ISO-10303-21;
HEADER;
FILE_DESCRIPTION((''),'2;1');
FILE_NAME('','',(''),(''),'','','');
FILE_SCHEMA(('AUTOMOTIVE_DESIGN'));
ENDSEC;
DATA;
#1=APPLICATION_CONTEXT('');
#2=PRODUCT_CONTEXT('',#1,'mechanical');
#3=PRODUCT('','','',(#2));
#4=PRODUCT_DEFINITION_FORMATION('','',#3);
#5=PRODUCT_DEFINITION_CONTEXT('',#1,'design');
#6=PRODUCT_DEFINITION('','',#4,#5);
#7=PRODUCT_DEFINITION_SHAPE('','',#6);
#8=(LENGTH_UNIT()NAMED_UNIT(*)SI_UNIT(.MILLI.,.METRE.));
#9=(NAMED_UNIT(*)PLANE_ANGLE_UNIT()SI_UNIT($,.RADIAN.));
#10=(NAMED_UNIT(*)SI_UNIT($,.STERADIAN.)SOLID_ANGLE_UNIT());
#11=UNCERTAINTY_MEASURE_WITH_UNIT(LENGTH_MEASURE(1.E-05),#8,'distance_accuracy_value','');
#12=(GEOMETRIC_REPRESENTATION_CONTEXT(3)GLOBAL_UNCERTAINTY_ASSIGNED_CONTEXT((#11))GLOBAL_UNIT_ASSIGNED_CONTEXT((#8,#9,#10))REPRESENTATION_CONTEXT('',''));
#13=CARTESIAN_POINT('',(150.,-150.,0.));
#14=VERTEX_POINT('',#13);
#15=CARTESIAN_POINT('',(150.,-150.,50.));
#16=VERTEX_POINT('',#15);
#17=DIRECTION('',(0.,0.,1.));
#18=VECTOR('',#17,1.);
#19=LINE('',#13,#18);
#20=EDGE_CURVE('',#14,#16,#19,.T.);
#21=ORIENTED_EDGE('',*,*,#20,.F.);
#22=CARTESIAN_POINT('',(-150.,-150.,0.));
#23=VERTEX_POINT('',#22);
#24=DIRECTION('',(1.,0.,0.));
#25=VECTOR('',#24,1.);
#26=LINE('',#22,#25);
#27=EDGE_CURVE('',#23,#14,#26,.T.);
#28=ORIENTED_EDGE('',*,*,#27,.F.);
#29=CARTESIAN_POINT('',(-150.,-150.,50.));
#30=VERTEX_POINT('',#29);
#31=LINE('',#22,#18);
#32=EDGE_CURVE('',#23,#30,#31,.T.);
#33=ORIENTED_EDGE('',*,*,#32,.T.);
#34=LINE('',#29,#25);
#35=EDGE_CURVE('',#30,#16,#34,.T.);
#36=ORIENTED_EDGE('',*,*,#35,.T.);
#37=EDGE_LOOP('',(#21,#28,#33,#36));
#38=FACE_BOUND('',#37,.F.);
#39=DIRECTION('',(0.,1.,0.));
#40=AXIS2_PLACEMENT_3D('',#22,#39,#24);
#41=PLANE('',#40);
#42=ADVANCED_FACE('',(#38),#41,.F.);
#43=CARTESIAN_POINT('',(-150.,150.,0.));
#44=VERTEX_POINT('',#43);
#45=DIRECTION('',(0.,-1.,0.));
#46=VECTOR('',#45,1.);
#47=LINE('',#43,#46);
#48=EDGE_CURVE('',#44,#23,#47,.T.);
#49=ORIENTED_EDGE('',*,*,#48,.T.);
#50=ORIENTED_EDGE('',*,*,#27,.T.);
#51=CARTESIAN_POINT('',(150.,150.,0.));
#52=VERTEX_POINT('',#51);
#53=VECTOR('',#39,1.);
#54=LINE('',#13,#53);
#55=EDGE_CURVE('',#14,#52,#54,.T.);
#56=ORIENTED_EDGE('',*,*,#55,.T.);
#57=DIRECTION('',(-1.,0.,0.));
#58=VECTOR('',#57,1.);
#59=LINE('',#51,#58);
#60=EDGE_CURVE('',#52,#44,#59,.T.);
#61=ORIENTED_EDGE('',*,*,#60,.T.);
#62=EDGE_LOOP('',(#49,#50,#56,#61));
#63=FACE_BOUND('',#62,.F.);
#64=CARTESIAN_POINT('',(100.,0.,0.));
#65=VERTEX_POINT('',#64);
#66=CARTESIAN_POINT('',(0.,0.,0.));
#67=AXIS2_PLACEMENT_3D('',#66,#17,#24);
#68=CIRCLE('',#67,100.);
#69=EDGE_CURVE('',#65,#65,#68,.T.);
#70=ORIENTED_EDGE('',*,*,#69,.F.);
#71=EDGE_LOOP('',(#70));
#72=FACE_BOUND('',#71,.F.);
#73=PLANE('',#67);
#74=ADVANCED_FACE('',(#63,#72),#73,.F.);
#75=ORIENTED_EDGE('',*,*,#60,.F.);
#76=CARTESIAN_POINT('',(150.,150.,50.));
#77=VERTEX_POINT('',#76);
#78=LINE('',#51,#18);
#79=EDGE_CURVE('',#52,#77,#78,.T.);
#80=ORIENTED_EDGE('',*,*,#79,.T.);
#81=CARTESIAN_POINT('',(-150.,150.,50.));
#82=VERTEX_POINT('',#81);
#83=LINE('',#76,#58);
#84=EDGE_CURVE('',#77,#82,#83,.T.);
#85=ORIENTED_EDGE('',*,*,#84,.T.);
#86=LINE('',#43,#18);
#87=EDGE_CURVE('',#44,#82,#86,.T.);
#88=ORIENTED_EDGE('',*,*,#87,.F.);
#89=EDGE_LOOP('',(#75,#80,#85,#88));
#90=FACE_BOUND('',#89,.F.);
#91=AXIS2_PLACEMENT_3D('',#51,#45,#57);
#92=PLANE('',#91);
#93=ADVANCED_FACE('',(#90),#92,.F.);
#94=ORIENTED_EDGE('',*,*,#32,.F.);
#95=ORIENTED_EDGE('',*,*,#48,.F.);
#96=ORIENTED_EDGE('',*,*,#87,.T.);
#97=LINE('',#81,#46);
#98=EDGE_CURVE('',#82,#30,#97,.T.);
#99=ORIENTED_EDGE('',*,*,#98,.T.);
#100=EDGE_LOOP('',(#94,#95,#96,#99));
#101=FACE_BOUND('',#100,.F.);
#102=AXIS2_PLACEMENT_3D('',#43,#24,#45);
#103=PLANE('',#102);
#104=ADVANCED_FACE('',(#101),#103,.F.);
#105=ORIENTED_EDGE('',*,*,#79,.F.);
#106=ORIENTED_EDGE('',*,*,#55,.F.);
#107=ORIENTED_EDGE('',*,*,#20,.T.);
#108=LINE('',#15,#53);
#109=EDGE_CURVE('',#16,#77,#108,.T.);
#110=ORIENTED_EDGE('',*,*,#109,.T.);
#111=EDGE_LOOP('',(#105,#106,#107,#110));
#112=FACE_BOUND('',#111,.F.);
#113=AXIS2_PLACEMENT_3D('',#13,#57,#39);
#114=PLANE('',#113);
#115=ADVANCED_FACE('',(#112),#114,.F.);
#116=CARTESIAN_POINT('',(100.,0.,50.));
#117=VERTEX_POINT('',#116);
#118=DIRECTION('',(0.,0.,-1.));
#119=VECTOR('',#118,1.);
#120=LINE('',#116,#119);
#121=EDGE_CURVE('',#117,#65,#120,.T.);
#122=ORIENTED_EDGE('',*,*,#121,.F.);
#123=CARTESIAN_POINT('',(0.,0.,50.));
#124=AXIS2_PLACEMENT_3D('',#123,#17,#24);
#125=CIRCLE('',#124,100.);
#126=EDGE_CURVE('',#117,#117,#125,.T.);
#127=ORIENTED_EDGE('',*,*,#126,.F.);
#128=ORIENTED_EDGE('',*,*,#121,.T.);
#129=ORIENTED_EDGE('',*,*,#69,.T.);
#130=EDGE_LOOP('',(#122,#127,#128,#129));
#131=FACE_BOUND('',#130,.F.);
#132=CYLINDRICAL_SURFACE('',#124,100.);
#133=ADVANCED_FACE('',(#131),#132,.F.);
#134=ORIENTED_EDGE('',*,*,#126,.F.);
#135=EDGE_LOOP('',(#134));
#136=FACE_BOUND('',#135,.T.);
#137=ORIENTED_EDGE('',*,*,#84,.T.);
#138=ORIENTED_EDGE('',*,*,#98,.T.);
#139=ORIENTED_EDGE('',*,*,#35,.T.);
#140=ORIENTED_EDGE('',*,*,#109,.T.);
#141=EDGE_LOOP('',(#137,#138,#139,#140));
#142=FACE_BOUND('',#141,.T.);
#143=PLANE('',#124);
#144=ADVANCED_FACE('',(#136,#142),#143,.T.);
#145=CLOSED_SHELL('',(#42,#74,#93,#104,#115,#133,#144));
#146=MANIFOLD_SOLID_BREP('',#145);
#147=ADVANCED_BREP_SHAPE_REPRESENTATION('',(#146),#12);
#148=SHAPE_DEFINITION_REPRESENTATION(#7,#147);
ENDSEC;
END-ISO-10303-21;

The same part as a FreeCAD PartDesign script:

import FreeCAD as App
import Part
import Sketcher
from FreeCAD import Vector
Q = App.Units.Quantity

doc = App.newDocument("Part")
body = doc.addObject("PartDesign::Body", "Body")

# Sketch on XY plane
sketch1 = body.newObject("Sketcher::SketchObject", "Sketch")
sketch1.AttachmentSupport = (doc.getObject("XY_Plane"), [""])
sketch1.MapMode = "FlatFace"
sketch1.addGeometry([
    Part.LineSegment(Vector(-150, 150, 0), Vector(-150, -150, 0)),
    Part.LineSegment(Vector(-150, -150, 0), Vector(150, -150, 0)),
    Part.LineSegment(Vector(150, -150, 0), Vector(150, 150, 0)),
    Part.LineSegment(Vector(150, 150, 0), Vector(-150, 150, 0)),
], False)
sketch1.addConstraint([
    Sketcher.Constraint("Coincident", 0, 2, 1, 1),
    Sketcher.Constraint("Coincident", 1, 2, 2, 1),
    Sketcher.Constraint("Coincident", 2, 2, 3, 1),
    Sketcher.Constraint("Coincident", 3, 2, 0, 1),
    Sketcher.Constraint("Vertical", 0),
    Sketcher.Constraint("Horizontal", 1),
    Sketcher.Constraint("Vertical", 2),
    Sketcher.Constraint("Horizontal", 3),
    Sketcher.Constraint("Symmetric", 0, 2, 2, 2, -1, 1),
    Sketcher.Constraint("Equal", 3, 0),
    Sketcher.Constraint("DistanceX", 1, 1, 1, 2, Q("300 mm")),
])
pad1 = body.newObject("PartDesign::Pad", "Pad")
pad1.Profile = sketch1
pad1.Length = 50

# Sketch on XY plane
sketch2 = body.newObject("Sketcher::SketchObject", "Sketch001")
sketch2.AttachmentSupport = (doc.getObject("XY_Plane"), [""])
sketch2.MapMode = "FlatFace"
sketch2.AttachmentOffset = App.Placement(Vector(0, 0, 50), App.Rotation())
sketch2.addGeometry(Part.Circle(Vector(0, 0, 0), Vector(0, 0, 1), 100), False)
sketch2.addConstraint([
    Sketcher.Constraint("Coincident", 0, 3, -1, 1),
    Sketcher.Constraint("Diameter", 0, Q("200 mm")),
])
pocket1 = body.newObject("PartDesign::Pocket", "Pocket")
pocket1.Profile = sketch2
pocket1.Type = "ThroughAll"

doc.recompute()
